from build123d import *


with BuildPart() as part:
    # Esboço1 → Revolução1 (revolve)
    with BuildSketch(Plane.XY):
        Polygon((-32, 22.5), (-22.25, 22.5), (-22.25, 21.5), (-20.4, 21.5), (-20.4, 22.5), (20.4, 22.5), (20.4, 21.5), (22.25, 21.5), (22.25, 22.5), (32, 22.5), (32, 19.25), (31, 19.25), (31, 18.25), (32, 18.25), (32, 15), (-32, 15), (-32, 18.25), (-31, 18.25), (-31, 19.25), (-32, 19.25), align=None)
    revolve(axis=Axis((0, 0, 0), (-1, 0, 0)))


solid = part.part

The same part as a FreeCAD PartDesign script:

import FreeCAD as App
import Part
import Sketcher

doc = App.newDocument("Part")
body = doc.addObject("PartDesign::Body", "Body")

# Sketch on XY plane
sketch1 = doc.addObject("Sketcher::SketchObject", "Sketch")
body.addObject(sketch1)
sketch1.AttachmentSupport = (doc.XY_Plane, [""])
sketch1.MapMode = "FlatFace"
sketch1.addGeometry([
    Part.LineSegment(App.Vector(-22.2, 22.5, 0), App.Vector(-32, 22.5, 0)),  # 0
    Part.LineSegment(App.Vector(-32, 22.5, 0), App.Vector(-32, 19.2, 0)),  # 1
    Part.LineSegment(App.Vector(-32, 19.2, 0), App.Vector(-31, 19.2, 0)),  # 2
    Part.LineSegment(App.Vector(-31, 19.2, 0), App.Vector(-31, 18.2, 0)),  # 3
    Part.LineSegment(App.Vector(-31, 18.2, 0), App.Vector(-32, 18.2, 0)),  # 4
    Part.LineSegment(App.Vector(-32, 18.2, 0), App.Vector(-32, 15, 0)),  # 5
    Part.LineSegment(App.Vector(-32, 15, 0), App.Vector(32, 15, 0)),  # 6
    Part.LineSegment(App.Vector(32, 15, 0), App.Vector(32, 18.2, 0)),  # 7
    Part.LineSegment(App.Vector(32, 18.2, 0), App.Vector(31, 18.2, 0)),  # 8
    Part.LineSegment(App.Vector(31, 18.2, 0), App.Vector(31, 19.2, 0)),  # 9
    Part.LineSegment(App.Vector(31, 19.2, 0), App.Vector(32, 19.2, 0)),  # 10
    Part.LineSegment(App.Vector(32, 19.2, 0), App.Vector(32, 22.5, 0)),  # 11
    Part.LineSegment(App.Vector(32, 22.5, 0), App.Vector(22.2, 22.5, 0)),  # 12
    Part.LineSegment(App.Vector(22.2, 22.5, 0), App.Vector(22.2, 21.5, 0)),  # 13
    Part.LineSegment(App.Vector(22.2, 21.5, 0), App.Vector(20.4, 21.5, 0)),  # 14
    Part.LineSegment(App.Vector(20.4, 21.5, 0), App.Vector(20.4, 22.5, 0)),  # 15
    Part.LineSegment(App.Vector(20.4, 22.5, 0), App.Vector(-20.4, 22.5, 0)),  # 16
    Part.LineSegment(App.Vector(-20.4, 22.5, 0), App.Vector(-20.4, 21.5, 0)),  # 17
    Part.LineSegment(App.Vector(-20.4, 21.5, 0), App.Vector(-22.2, 21.5, 0)),  # 18
    Part.LineSegment(App.Vector(-22.2, 21.5, 0), App.Vector(-22.2, 22.5, 0)),  # 19
], False)
sketch1.addConstraint([
    Sketcher.Constraint("Coincident", 0, 2, 1, 1),
    Sketcher.Constraint("Coincident", 1, 2, 2, 1),
    Sketcher.Constraint("Coincident", 2, 2, 3, 1),
    Sketcher.Constraint("Coincident", 3, 2, 4, 1),
    Sketcher.Constraint("Coincident", 4, 2, 5, 1),
    Sketcher.Constraint("Coincident", 5, 2, 6, 1),
    Sketcher.Constraint("Coincident", 6, 2, 7, 1),
    Sketcher.Constraint("Coincident", 7, 2, 8, 1),
    Sketcher.Constraint("Coincident", 8, 2, 9, 1),
    Sketcher.Constraint("Coincident", 9, 2, 10, 1),
    Sketcher.Constraint("Coincident", 10, 2, 11, 1),
    Sketcher.Constraint("Coincident", 11, 2, 12, 1),
    Sketcher.Constraint("Coincident", 12, 2, 13, 1),
    Sketcher.Constraint("Coincident", 13, 2, 14, 1),
    Sketcher.Constraint("Coincident", 14, 2, 15, 1),
    Sketcher.Constraint("Coincident", 15, 2, 16, 1),
    Sketcher.Constraint("Coincident", 16, 2, 17, 1),
    Sketcher.Constraint("Coincident", 17, 2, 18, 1),
    Sketcher.Constraint("Coincident", 18, 2, 19, 1),
    Sketcher.Constraint("Coincident", 19, 2, 0, 1),
    Sketcher.Constraint("Horizontal", 0),
    Sketcher.Constraint("Vertical", 1),
    Sketcher.Constraint("Horizontal", 2),
    Sketcher.Constraint("Vertical", 3),
    Sketcher.Constraint("Horizontal", 4),
    Sketcher.Constraint("Vertical", 5),
    Sketcher.Constraint("Horizontal", 6),
    Sketcher.Constraint("Vertical", 7),
    Sketcher.Constraint("Horizontal", 8),
    Sketcher.Constraint("Vertical", 9),
    Sketcher.Constraint("Horizontal", 10),
    Sketcher.Constraint("Vertical", 11),
    Sketcher.Constraint("Horizontal", 12),
    Sketcher.Constraint("Vertical", 13),
    Sketcher.Constraint("Horizontal", 14),
    Sketcher.Constraint("Vertical", 15),
    Sketcher.Constraint("Horizontal", 16),
    Sketcher.Constraint("Vertical", 17),
    Sketcher.Constraint("Horizontal", 18),
    Sketcher.Constraint("Vertical", 19),
    Sketcher.Constraint("Symmetric", 4, 2, 7, 2, -2),
    Sketcher.Constraint("Symmetric", 2, 2, 9, 2, -2),
    Sketcher.Constraint("Symmetric", 0, 2, 11, 2, -2),
    Sketcher.Constraint("Symmetric", 14, 2, 17, 2, -2),
    Sketcher.Constraint("Horizontal", 12, 2, 15, 2),
    Sketcher.Constraint("Vertical", 1, 2, 4, 2),
    Sketcher.Constraint("Equal", 0, 12),
    Sketcher.Constraint("Equal", 10, 3),
    Sketcher.Constraint("Equal", 1, 5),
    Sketcher.Constraint("Equal", 9, 13),
    Sketcher.Constraint("DistanceX", 2, 1, 2, 2, 1.0),
    Sketcher.Constraint("DistanceX", 6, 1, 6, 2, 64.0),
    Sketcher.Constraint("DistanceX", 16, 2, 16, 1, 40.8),
    Sketcher.Constraint("DistanceY", -1, 1, 5, 2, 15.0),
    Sketcher.Constraint("DistanceX", 0, 2, 0, 1, 9.75),
    Sketcher.Constraint("DistanceY", 1, 2, 1, 1, 3.25),
])
revolution = doc.addObject("PartDesign::Revolution", "Revolution")
body.addObject(revolution)
revolution.Profile = sketch1
revolution.ReferenceAxis = (sketch1, ["H_Axis"])
revolution.Angle = 360

doc.recompute()
